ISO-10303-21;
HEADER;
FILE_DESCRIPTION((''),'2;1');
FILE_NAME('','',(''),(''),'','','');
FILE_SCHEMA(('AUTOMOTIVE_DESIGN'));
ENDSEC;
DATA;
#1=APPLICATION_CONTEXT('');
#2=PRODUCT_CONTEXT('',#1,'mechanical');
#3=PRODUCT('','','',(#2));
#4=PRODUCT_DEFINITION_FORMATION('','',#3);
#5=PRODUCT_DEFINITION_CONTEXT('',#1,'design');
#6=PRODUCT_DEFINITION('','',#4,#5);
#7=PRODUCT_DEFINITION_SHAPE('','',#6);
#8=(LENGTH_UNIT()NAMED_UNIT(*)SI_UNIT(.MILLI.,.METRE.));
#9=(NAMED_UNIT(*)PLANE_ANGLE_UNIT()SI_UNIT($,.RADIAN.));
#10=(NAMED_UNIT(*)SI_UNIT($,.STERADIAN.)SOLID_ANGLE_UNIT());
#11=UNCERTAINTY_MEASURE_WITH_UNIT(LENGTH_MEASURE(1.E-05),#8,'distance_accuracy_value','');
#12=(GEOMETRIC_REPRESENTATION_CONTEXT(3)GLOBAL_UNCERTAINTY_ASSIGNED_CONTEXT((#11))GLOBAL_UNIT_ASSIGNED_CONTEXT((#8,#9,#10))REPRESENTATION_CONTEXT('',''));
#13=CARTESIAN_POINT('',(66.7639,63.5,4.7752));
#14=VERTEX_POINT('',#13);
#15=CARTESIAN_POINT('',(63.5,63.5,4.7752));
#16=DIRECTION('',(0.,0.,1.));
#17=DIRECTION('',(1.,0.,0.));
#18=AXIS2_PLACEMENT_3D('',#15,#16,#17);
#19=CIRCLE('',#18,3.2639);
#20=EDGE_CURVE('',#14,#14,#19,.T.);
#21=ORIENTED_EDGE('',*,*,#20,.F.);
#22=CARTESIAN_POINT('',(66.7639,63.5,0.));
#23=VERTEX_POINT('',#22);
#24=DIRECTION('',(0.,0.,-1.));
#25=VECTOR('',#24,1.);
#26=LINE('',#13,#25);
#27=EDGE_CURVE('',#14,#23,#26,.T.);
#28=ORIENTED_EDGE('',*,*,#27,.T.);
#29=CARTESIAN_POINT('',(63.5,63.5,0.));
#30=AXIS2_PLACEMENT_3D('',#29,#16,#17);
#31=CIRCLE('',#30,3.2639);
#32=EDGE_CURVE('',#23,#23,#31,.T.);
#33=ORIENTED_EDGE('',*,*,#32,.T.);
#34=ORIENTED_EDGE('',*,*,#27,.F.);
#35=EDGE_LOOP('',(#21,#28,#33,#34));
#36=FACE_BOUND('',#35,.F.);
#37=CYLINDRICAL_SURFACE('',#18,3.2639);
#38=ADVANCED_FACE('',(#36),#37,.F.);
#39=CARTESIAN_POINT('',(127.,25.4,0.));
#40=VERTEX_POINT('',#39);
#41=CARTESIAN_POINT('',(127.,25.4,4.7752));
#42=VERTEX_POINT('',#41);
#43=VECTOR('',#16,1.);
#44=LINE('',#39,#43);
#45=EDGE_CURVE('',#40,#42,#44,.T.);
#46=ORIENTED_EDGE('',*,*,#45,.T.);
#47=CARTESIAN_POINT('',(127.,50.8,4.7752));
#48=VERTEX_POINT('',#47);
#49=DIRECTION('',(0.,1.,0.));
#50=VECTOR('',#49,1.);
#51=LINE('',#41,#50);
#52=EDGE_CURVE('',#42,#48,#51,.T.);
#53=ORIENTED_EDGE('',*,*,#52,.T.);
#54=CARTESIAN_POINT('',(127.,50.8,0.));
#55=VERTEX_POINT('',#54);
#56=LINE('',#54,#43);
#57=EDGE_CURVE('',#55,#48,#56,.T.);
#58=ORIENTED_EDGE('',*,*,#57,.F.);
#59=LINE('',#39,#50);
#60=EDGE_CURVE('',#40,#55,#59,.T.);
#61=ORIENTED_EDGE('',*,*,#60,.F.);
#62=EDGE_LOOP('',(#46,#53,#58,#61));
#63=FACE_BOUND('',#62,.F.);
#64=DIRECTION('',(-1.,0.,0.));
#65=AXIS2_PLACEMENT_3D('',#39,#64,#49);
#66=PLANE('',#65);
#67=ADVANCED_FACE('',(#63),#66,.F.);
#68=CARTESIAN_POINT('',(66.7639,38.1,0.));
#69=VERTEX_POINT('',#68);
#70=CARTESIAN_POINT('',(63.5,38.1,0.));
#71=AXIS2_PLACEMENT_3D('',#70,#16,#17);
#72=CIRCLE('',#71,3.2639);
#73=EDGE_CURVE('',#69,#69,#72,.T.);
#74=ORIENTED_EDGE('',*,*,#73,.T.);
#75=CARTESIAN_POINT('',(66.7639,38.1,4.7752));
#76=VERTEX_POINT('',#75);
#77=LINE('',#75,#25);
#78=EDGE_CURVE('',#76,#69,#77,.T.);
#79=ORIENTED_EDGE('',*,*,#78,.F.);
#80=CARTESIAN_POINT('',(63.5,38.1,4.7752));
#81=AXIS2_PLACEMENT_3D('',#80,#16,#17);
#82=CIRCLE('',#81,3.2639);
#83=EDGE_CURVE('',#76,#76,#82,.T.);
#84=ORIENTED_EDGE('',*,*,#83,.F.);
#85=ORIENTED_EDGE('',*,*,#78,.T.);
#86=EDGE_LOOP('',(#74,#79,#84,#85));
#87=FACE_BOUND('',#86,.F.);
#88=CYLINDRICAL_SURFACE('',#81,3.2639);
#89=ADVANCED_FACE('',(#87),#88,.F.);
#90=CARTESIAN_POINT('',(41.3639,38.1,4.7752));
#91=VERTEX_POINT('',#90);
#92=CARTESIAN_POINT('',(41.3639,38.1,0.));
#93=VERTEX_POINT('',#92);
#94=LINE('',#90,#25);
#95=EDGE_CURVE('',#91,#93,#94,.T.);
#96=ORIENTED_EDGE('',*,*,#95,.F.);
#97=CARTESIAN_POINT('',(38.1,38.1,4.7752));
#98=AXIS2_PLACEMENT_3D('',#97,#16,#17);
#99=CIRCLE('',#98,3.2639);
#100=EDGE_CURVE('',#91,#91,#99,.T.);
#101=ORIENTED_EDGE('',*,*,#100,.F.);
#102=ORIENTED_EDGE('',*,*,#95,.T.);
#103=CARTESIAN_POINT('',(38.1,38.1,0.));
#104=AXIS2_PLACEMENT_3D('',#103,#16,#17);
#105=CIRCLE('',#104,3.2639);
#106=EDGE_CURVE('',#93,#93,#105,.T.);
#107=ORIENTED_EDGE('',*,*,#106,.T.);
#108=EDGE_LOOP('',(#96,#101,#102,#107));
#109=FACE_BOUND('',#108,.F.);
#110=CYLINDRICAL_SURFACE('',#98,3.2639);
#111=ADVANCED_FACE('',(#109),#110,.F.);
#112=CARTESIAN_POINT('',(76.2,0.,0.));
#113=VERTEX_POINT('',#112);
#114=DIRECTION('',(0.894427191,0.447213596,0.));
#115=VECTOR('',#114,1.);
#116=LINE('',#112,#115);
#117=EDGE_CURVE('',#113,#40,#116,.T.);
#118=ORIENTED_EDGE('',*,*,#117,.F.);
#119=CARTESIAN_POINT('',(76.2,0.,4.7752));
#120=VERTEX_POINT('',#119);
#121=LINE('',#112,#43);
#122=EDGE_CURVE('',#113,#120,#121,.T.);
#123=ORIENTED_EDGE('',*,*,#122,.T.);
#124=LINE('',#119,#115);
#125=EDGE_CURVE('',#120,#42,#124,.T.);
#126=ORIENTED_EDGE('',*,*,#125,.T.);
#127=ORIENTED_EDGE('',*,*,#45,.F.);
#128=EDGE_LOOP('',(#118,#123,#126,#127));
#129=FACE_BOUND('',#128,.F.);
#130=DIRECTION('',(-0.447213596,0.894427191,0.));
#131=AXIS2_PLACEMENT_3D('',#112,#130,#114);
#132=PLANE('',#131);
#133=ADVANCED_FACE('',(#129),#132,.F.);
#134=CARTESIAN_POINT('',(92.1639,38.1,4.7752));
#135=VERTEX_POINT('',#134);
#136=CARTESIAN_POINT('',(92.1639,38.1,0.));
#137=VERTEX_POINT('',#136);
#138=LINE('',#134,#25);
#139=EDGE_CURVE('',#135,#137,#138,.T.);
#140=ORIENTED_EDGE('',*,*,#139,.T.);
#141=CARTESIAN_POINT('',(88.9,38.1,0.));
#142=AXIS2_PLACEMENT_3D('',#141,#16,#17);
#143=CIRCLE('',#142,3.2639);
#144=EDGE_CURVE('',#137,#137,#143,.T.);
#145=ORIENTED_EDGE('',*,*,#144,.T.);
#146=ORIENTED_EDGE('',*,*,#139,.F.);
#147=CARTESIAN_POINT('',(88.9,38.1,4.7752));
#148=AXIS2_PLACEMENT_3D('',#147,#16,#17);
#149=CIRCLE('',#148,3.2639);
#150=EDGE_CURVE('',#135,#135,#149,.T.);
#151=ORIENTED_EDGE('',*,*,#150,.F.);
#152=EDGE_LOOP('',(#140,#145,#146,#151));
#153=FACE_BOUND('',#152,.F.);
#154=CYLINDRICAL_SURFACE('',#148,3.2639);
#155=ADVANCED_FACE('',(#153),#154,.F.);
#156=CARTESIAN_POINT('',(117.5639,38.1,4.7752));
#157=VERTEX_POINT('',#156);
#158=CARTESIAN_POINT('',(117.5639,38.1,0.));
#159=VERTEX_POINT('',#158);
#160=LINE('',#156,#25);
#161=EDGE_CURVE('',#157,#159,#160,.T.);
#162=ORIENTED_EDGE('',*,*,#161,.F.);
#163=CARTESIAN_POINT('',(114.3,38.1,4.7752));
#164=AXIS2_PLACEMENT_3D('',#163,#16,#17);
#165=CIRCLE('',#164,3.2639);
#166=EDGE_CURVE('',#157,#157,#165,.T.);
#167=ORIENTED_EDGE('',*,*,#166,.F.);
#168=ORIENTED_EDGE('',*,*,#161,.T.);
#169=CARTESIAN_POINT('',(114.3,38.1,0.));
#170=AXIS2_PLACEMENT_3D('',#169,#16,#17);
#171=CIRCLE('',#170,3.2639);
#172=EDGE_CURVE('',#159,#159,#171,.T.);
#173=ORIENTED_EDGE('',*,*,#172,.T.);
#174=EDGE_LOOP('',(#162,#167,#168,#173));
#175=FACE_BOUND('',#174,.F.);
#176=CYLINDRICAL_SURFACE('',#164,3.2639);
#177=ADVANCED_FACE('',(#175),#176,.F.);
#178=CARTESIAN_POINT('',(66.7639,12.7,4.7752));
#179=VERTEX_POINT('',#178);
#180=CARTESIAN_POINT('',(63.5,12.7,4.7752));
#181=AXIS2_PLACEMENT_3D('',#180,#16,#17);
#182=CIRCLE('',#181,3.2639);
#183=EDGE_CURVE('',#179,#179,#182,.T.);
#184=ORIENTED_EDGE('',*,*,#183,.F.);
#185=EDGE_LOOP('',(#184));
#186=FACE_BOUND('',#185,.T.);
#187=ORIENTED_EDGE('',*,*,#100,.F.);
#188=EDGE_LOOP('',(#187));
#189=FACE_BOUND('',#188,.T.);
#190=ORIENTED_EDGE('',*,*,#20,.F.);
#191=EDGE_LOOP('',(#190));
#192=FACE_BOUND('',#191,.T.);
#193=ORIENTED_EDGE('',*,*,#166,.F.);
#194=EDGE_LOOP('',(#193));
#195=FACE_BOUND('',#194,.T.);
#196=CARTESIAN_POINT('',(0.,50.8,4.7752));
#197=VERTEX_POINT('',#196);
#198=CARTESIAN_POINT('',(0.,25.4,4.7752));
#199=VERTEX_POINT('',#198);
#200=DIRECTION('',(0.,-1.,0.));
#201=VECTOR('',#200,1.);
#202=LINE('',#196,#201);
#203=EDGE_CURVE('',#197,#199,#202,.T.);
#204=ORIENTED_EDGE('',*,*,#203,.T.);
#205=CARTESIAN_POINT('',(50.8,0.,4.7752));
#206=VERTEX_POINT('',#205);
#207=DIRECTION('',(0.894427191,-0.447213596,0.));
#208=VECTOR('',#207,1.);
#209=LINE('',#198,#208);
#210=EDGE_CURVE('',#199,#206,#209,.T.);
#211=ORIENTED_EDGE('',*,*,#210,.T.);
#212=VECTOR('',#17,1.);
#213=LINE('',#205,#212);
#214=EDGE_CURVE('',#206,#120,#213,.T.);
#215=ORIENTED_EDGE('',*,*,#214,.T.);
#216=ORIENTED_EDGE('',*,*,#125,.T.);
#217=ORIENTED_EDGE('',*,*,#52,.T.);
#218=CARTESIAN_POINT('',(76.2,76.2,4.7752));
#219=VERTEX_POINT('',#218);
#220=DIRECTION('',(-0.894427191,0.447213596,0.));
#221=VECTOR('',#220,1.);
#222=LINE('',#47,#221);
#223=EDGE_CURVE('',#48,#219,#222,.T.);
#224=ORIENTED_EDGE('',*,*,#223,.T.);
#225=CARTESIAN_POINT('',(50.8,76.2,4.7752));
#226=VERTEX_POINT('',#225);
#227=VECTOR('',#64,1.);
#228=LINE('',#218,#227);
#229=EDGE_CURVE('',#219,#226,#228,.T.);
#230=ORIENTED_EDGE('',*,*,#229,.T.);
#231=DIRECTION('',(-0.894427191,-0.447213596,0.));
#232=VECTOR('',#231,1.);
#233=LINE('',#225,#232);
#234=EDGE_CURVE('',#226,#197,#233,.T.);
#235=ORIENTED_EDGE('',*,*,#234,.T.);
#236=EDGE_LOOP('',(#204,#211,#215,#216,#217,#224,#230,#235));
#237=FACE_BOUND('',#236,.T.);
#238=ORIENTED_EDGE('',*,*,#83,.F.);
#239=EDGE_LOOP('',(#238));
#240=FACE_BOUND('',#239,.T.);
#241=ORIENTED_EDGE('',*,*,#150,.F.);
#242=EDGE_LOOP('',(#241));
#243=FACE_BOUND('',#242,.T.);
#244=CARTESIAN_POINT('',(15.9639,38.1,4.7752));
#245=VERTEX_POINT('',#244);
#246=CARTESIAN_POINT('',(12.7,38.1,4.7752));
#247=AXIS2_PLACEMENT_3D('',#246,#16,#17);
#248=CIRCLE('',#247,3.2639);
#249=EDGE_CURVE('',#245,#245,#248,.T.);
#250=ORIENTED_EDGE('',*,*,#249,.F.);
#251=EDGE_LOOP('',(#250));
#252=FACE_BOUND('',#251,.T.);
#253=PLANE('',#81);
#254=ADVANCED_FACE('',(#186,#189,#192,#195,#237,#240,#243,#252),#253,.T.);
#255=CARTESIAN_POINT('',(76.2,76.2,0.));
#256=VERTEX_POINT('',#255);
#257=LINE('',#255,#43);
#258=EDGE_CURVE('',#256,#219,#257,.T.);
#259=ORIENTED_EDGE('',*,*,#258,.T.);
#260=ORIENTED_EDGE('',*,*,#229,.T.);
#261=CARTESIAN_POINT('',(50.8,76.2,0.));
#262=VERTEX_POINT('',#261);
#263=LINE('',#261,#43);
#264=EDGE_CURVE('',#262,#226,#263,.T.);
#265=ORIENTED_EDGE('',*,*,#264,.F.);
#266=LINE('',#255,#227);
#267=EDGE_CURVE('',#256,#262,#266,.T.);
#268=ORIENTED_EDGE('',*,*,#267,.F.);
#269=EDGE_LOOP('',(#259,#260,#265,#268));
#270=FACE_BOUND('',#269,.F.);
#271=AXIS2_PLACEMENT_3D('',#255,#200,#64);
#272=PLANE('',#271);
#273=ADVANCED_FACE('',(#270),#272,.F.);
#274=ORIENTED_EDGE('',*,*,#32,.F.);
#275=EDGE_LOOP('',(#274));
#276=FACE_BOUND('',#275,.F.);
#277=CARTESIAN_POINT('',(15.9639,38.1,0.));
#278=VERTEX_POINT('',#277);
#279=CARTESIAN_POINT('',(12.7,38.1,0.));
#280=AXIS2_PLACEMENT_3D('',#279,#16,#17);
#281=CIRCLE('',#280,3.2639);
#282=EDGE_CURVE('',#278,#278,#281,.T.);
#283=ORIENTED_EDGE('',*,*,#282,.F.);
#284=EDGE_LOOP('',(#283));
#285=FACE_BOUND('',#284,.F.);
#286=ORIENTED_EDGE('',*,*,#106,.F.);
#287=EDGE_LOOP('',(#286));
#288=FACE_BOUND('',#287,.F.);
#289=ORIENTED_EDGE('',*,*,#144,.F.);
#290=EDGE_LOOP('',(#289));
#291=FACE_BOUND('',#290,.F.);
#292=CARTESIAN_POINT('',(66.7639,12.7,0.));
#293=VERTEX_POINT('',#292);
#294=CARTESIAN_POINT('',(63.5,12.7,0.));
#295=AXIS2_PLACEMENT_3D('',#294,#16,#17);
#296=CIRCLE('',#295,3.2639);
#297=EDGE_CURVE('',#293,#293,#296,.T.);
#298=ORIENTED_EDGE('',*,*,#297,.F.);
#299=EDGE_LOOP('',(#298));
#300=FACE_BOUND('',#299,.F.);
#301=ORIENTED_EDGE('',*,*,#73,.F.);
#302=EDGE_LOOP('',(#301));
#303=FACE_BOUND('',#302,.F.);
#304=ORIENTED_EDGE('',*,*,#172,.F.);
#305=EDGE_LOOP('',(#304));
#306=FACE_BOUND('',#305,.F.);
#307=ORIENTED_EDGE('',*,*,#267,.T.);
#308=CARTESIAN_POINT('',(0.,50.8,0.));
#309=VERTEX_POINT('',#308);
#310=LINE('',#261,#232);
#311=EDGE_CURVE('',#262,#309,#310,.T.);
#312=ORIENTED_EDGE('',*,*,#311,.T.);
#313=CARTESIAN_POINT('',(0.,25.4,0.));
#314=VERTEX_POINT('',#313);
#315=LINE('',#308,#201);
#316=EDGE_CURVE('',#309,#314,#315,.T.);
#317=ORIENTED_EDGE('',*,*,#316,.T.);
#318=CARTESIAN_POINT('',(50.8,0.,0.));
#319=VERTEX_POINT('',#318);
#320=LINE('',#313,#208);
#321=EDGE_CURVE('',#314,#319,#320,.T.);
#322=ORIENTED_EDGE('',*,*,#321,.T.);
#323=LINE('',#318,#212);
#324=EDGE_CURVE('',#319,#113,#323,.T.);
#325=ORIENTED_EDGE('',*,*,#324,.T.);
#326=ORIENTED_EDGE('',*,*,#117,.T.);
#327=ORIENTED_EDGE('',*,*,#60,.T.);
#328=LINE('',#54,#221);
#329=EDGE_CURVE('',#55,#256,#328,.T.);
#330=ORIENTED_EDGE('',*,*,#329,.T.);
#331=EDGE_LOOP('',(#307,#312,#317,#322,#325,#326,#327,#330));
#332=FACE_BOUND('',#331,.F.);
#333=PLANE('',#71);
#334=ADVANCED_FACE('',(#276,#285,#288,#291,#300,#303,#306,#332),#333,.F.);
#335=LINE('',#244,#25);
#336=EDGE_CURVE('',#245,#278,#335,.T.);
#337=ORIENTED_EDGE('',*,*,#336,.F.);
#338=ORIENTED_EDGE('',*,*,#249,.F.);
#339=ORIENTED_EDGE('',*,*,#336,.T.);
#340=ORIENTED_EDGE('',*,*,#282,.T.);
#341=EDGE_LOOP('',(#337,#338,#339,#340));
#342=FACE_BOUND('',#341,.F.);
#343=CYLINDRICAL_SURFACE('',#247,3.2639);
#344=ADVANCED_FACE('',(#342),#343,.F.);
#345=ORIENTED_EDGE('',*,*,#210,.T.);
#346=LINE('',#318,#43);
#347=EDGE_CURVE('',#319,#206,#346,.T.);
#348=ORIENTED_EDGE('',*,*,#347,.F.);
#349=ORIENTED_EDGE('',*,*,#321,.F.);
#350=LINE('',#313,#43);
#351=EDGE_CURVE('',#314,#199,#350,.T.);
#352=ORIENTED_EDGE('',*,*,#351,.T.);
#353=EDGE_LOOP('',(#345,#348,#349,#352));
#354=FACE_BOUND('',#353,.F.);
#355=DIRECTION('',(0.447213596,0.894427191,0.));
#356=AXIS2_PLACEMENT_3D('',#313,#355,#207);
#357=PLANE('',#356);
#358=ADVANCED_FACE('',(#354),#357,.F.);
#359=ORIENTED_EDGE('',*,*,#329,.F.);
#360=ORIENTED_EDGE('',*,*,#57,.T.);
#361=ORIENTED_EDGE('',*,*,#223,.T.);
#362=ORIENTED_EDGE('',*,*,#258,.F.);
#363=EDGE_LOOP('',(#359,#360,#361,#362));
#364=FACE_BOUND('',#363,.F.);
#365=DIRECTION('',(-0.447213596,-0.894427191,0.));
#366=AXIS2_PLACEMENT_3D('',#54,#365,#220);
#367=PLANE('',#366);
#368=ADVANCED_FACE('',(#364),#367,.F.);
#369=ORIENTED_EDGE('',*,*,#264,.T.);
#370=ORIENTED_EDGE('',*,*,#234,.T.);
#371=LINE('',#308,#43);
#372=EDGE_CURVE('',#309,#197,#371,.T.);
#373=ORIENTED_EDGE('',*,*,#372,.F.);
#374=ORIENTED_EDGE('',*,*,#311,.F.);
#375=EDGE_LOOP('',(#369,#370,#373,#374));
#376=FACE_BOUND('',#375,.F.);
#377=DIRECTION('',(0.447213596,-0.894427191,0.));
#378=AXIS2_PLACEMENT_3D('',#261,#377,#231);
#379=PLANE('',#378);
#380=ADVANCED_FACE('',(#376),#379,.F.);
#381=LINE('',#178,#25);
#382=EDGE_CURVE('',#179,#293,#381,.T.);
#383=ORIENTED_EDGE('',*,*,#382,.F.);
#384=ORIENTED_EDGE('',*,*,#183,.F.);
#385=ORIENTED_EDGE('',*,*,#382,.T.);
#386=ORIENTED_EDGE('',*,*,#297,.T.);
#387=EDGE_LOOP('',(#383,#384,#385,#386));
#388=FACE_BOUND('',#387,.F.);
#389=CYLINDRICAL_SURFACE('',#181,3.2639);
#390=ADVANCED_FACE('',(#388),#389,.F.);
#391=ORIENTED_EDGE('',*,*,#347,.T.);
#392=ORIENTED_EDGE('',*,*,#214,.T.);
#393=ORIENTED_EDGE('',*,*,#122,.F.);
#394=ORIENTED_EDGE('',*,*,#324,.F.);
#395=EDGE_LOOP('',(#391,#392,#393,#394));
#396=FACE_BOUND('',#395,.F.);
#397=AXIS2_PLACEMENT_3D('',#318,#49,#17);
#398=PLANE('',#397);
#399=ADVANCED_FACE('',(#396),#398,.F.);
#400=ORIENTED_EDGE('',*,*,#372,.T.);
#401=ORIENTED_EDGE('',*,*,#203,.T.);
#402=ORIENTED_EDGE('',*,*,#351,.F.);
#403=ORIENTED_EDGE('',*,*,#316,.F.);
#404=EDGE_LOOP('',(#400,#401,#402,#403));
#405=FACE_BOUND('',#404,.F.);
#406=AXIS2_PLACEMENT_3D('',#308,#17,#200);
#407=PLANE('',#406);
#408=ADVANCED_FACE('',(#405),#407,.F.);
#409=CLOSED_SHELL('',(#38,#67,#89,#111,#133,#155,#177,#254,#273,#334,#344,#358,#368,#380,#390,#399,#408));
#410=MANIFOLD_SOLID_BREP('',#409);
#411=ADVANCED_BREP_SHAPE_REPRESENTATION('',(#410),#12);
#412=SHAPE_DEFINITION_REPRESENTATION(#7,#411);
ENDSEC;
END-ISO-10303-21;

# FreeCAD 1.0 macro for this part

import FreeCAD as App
import Part
import Sketcher
Q = App.Units.Quantity

doc = App.newDocument("Part")
body = doc.addObject("PartDesign::Body", "Body")

sketch1 = doc.addObject("Sketcher::SketchObject", "Sketch")
body.addObject(sketch1)
sketch1.AttachmentSupport = (doc.XY_Plane, [""])
sketch1.MapMode = "FlatFace"
sketch1.addGeometry(Part.LineSegment(App.Vector(50.8, 0, 0), App.Vector(76.2, 0, 0)), False)
sketch1.addGeometry(Part.LineSegment(App.Vector(76.2, 0, 0), App.Vector(127, 25.4, 0)), False)
sketch1.addGeometry(Part.LineSegment(App.Vector(127, 25.4, 0), App.Vector(127, 50.8, 0)), False)
sketch1.addGeometry(Part.LineSegment(App.Vector(127, 50.8, 0), App.Vector(76.2, 76.2, 0)), False)
sketch1.addGeometry(Part.LineSegment(App.Vector(76.2, 76.2, 0), App.Vector(50.8, 76.2, 0)), False)
sketch1.addGeometry(Part.LineSegment(App.Vector(50.8, 76.2, 0), App.Vector(0, 50.8, 0)), False)
sketch1.addGeometry(Part.LineSegment(App.Vector(0, 50.8, 0), App.Vector(0, 25.4, 0)), False)
sketch1.addGeometry(Part.LineSegment(App.Vector(0, 25.4, 0), App.Vector(50.8, 0, 0)), False)
sketch1.addConstraint(Sketcher.Constraint("Coincident", 0, 2, 1, 1))
sketch1.addConstraint(Sketcher.Constraint("Coincident", 1, 2, 2, 1))
sketch1.addConstraint(Sketcher.Constraint("Coincident", 2, 2, 3, 1))
sketch1.addConstraint(Sketcher.Constraint("Coincident", 3, 2, 4, 1))
sketch1.addConstraint(Sketcher.Constraint("Coincident", 4, 2, 5, 1))
sketch1.addConstraint(Sketcher.Constraint("Coincident", 5, 2, 6, 1))
sketch1.addConstraint(Sketcher.Constraint("Coincident", 6, 2, 7, 1))
sketch1.addConstraint(Sketcher.Constraint("Coincident", 7, 2, 0, 1))
sketch1.addConstraint(Sketcher.Constraint("Horizontal", 0))
sketch1.addConstraint(Sketcher.Constraint("Vertical", 2))
sketch1.addConstraint(Sketcher.Constraint("Horizontal", 4))
sketch1.addConstraint(Sketcher.Constraint("Vertical", 6))
sketch1.addConstraint(Sketcher.Constraint("PointOnObject", 0, 2, -1))
sketch1.addConstraint(Sketcher.Constraint("PointOnObject", 5, 2, -2))
sketch1.addConstraint(Sketcher.Constraint("Parallel", 1, 5))
sketch1.addConstraint(Sketcher.Constraint("Parallel", 3, 7))
sketch1.addConstraint(Sketcher.Constraint("Horizontal", 2, 2, 5, 2))
sketch1.addConstraint(Sketcher.Constraint("Horizontal", 1, 2, 6, 2))
sketch1.addConstraint(Sketcher.Constraint("Vertical", 0, 2, 3, 2))
sketch1.addConstraint(Sketcher.Constraint("Vertical", 4, 2, 7, 2))
sketch1.addConstraint(Sketcher.Constraint("Equal", 4, 2))
sketch1.addConstraint(Sketcher.Constraint("DistanceX", 0, 1, 0, 2, Q("1 in")))
sketch1.addConstraint(Sketcher.Constraint("DistanceX", -1, 1, 0, 2, Q("3 in")))
sketch1.addConstraint(Sketcher.Constraint("DistanceY", -1, 1, 1, 2, Q("1 in")))
pad1 = doc.addObject("PartDesign::Pad", "Pad")
body.addObject(pad1)
pad1.Profile = sketch1
pad1.Length = Q("0.188 in")

sketch2 = doc.addObject("Sketcher::SketchObject", "Sketch001")
body.addObject(sketch2)
sketch2.AttachmentSupport = (doc.XY_Plane, [""])
sketch2.MapMode = "FlatFace"
sketch2.AttachmentOffset = App.Placement(App.Vector(0, 0, 0.188 * 25.4), App.Rotation())
sketch2.addGeometry(Part.Circle(App.Vector(12.7, 38.1, 0), App.Vector(0, 0, 1), 3.2639), False)
sketch2.addConstraint(Sketcher.Constraint("Diameter", 0, Q("0.257 in")))
sketch2.addConstraint(Sketcher.Constraint("DistanceX", -1, 1, 0, 3, Q("0.5 in")))
sketch2.addConstraint(Sketcher.Constraint("DistanceY", -1, 1, 0, 3, Q("1.5 in")))
pocket1 = doc.addObject("PartDesign::Pocket", "Pocket")
body.addObject(pocket1)
pocket1.Profile = sketch2
pocket1.Type = "ThroughAll"
doc.recompute()

linearpattern = doc.addObject("PartDesign::LinearPattern", "LinearPattern")
body.addObject(linearpattern)
linearpattern.Originals = [pocket1]
linearpattern.Direction = (doc.X_Axis, [""])
linearpattern.Mode = "offset"
linearpattern.Offset = Q("1 in")
linearpattern.Occurrences = 5
body.Tip = linearpattern

sketch3 = doc.addObject("Sketcher::SketchObject", "Sketch002")
body.addObject(sketch3)
sketch3.AttachmentSupport = (doc.XY_Plane, [""])
sketch3.MapMode = "FlatFace"
sketch3.AttachmentOffset = App.Placement(App.Vector(0, 0, 0.188 * 25.4), App.Rotation())
sketch3.addGeometry(Part.Circle(App.Vector(63.5, 12.7, 0), App.Vector(0, 0, 1), 3.2639), False)
sketch3.addConstraint(Sketcher.Constraint("Diameter", 0, Q("0.257 in")))
sketch3.addConstraint(Sketcher.Constraint("DistanceX", -1, 1, 0, 3, Q("2.5 in")))
sketch3.addConstraint(Sketcher.Constraint("DistanceY", -1, 1, 0, 3, Q("0.5 in")))
pocket2 = doc.addObject("PartDesign::Pocket", "Pocket001")
body.addObject(pocket2)
pocket2.Profile = sketch3
pocket2.Type = "ThroughAll"
doc.recompute()

linearpattern2 = doc.addObject("PartDesign::LinearPattern", "LinearPattern001")
body.addObject(linearpattern2)
linearpattern2.Originals = [pocket2]
linearpattern2.Direction = (doc.Y_Axis, [""])
linearpattern2.Mode = "offset"
linearpattern2.Offset = Q("2 in")
linearpattern2.Occurrences = 2
body.Tip = linearpattern2

doc.recompute()
